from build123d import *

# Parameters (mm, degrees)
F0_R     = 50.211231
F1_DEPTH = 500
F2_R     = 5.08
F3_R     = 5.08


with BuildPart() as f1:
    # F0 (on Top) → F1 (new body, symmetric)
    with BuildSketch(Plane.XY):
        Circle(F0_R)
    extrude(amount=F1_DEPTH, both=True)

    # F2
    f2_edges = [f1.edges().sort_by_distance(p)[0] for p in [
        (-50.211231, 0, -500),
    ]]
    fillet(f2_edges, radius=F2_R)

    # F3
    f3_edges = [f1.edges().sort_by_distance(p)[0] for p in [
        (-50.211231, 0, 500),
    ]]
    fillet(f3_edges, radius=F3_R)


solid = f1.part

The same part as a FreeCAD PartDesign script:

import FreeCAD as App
import Part
import Sketcher

V = App.Vector


def edges_at(feature, points):
    """Names of the edges that pass closest to the given points."""
    edges = feature.Shape.Edges
    near = lambda p: min(range(len(edges)), key=lambda i: edges[i].distToShape(Part.Vertex(*p))[0])
    return sorted({f"Edge{near(p) + 1}" for p in points})

doc = App.newDocument("Part")
params = doc.addObject("Spreadsheet::Sheet", "Params")
for row, (alias, value) in enumerate([
    ("pad1_length", "1000 mm"),
    ("fillet_radius", "5.08 mm"),
    ("fillet2_radius", "5.08 mm"),
], start=1):
    params.set(f"A{row}", alias)
    params.set(f"B{row}", "=" + value)
    params.setAlias(f"B{row}", alias)

body = doc.addObject("PartDesign::Body", "Body")

sketch1 = doc.addObject("Sketcher::SketchObject", "Sketch")
body.addObject(sketch1)
sketch1.AttachmentSupport = (doc.XY_Plane, [""])
sketch1.MapMode = "FlatFace"
sketch1.addGeometry(Part.Circle(V(0, 0, 0), V(0, 0, 1), 50.211231), False)
sketch1.addConstraint([
    Sketcher.Constraint("Coincident", 0, 3, -1, 1),
    Sketcher.Constraint("Diameter", 0, 100.422462),
])
pad1 = doc.addObject("PartDesign::Pad", "Pad")
body.addObject(pad1)
pad1.Profile = sketch1
pad1.setExpression("Length", "Params.pad1_length")
pad1.Midplane = True
doc.recompute()

fillet = doc.addObject("PartDesign::Fillet", "Fillet")
body.addObject(fillet)
fillet.Base = (pad1, edges_at(pad1, [(-50.211, 0, -500)]))
fillet.setExpression("Radius", "Params.fillet_radius")
doc.recompute()

fillet2 = doc.addObject("PartDesign::Fillet", "Fillet001")
body.addObject(fillet2)
fillet2.Base = (fillet, edges_at(fillet, [(-50.211, 0, 500)]))
fillet2.setExpression("Radius", "Params.fillet2_radius")

doc.recompute()
